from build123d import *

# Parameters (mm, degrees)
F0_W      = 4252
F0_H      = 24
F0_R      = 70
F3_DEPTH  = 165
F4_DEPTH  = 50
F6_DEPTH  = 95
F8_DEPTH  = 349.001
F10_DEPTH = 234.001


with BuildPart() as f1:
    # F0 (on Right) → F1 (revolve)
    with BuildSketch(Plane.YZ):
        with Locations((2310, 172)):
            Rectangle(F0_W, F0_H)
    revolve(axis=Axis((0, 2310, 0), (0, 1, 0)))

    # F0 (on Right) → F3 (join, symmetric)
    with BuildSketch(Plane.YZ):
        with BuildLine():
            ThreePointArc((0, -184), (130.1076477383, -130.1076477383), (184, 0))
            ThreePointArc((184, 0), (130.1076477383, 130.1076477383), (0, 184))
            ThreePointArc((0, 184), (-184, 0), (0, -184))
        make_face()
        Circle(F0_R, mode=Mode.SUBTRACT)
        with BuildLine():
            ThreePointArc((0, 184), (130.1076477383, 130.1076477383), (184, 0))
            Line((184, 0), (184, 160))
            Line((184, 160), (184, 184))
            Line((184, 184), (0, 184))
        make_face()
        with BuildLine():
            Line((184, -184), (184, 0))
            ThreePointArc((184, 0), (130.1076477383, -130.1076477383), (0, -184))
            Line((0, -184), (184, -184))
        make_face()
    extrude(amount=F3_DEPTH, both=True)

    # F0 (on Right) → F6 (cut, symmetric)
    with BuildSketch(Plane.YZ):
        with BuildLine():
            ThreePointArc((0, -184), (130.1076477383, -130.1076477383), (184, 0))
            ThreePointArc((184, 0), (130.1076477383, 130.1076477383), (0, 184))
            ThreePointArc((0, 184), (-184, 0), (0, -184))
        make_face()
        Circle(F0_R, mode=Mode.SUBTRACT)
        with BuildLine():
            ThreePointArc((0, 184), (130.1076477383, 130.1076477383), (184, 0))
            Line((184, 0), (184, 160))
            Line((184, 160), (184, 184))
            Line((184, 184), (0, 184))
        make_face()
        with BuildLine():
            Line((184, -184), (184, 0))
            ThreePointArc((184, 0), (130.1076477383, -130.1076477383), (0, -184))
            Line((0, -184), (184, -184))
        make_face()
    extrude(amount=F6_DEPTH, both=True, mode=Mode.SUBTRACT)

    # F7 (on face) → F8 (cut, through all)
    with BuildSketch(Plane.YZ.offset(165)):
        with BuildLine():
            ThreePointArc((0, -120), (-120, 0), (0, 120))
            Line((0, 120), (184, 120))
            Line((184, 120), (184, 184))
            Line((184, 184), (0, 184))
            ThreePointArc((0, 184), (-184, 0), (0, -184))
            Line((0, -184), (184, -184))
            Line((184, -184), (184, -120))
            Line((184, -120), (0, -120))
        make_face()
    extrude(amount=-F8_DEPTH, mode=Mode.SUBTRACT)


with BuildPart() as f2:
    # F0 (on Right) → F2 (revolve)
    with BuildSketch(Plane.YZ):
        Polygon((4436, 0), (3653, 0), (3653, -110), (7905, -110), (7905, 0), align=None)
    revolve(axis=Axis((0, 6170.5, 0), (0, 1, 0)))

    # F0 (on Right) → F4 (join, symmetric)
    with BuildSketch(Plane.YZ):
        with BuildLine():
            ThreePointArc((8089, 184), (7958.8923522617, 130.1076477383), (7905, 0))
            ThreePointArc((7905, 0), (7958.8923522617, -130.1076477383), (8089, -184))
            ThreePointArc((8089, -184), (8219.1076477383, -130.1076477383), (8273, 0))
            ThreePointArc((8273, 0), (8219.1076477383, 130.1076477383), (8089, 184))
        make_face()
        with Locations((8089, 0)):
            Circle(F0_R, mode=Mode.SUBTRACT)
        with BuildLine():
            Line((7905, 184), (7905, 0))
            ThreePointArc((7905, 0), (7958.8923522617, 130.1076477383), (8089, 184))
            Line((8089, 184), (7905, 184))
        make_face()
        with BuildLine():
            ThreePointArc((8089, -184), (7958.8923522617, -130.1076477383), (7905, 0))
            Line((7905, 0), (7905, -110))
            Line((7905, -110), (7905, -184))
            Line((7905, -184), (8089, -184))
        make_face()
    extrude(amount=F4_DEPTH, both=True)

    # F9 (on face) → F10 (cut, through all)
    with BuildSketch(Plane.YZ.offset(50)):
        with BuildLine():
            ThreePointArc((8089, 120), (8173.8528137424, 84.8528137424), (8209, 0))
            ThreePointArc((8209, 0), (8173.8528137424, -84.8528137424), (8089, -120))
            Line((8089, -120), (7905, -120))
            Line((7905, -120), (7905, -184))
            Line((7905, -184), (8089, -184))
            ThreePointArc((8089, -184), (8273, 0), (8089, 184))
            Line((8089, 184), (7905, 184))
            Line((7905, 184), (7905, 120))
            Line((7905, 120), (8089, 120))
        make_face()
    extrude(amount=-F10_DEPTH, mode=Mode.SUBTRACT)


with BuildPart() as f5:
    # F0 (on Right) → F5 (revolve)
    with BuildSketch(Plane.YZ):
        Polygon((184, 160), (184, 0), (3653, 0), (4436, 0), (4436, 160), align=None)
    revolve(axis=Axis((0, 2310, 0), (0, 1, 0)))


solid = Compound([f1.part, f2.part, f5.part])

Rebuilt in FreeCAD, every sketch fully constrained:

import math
import FreeCAD as App
import Part
import Sketcher
from FreeCAD import Vector


def add_polygon(sketch, points):
    """Adds a closed chain of lines whose ends are joined by coincident constraints."""
    first, n = sketch.GeometryCount, len(points)
    for a, b in zip(points, points[1:] + points[:1]):
        sketch.addGeometry(Part.LineSegment(App.Vector(*a, 0), App.Vector(*b, 0)), False)
    for i in range(n):
        sketch.addConstraint(Sketcher.Constraint("Coincident", first + i, 2, first + (i + 1) % n, 1))

doc = App.newDocument("Part")
body = doc.addObject("PartDesign::Body", "Body")

# Sketch on YZ plane
sketch1 = body.newObject("Sketcher::SketchObject", "Sketch")
sketch1.AttachmentSupport = (doc.getObject("YZ_Plane"), [""])
sketch1.MapMode = "FlatFace"
add_polygon(sketch1, [(184, 184), (184, 160), (4436, 160), (4436, 184)])  # lines 0-3
sketch1.addConstraint([
    Sketcher.Constraint("Vertical", 0),
    Sketcher.Constraint("Horizontal", 1),
    Sketcher.Constraint("Vertical", 2),
    Sketcher.Constraint("Horizontal", 3),
    Sketcher.Constraint("DistanceX", 1, 1, 1, 2, 4252.0),
    Sketcher.Constraint("DistanceY", 0, 2, 0, 1, 24.0),
    Sketcher.Constraint("DistanceX", -1, 1, 0, 2, 184.0),
    Sketcher.Constraint("DistanceY", -1, 1, 0, 2, 160.0),
])
revolution = body.newObject("PartDesign::Revolution", "Revolution")
revolution.Profile = sketch1
revolution.ReferenceAxis = (sketch1, ["H_Axis"])
revolution.Angle = 360

# Sketch on YZ plane
sketch2 = body.newObject("Sketcher::SketchObject", "Sketch001")
sketch2.AttachmentSupport = (doc.getObject("YZ_Plane"), [""])
sketch2.MapMode = "FlatFace"
sketch2.addGeometry([
    Part.ArcOfCircle(Part.Circle(Vector(0, 0, 0), Vector(0, 0, 1), 184), math.radians(90), math.radians(270)),  # 0
    Part.LineSegment(Vector(0, -184, 0), Vector(184, -184, 0)),  # 1
    Part.LineSegment(Vector(184, -184, 0), Vector(184, 184, 0)),  # 2
    Part.LineSegment(Vector(184, 184, 0), Vector(0, 184, 0)),  # 3
    Part.Circle(Vector(0, 0, 0), Vector(0, 0, 1), 70),  # 4
], False)
sketch2.addConstraint([
    Sketcher.Constraint("Tangent", 0, 2, 1, 1),
    Sketcher.Constraint("Coincident", 1, 2, 2, 1),
    Sketcher.Constraint("Coincident", 2, 2, 3, 1),
    Sketcher.Constraint("Tangent", 3, 2, 0, 1),
    Sketcher.Constraint("Horizontal", 1),
    Sketcher.Constraint("Vertical", 2),
    Sketcher.Constraint("Horizontal", 3),
    Sketcher.Constraint("Coincident", 0, 3, -1, 1),
    Sketcher.Constraint("Coincident", 4, 3, -1, 1),
    Sketcher.Constraint("Diameter", 4, 140.0),
    Sketcher.Constraint("Radius", 0, 184.0),
    Sketcher.Constraint("DistanceX", 1, 1, 1, 2, 184.0),
])
pad1 = body.newObject("PartDesign::Pad", "Pad")
pad1.Profile = sketch2
pad1.Length = 330
pad1.Midplane = True

# Sketch on YZ plane
sketch3 = body.newObject("Sketcher::SketchObject", "Sketch002")
sketch3.AttachmentSupport = (doc.getObject("YZ_Plane"), [""])
sketch3.MapMode = "FlatFace"
sketch3.addGeometry([
    Part.ArcOfCircle(Part.Circle(Vector(0, 0, 0), Vector(0, 0, 1), 184), math.radians(90), math.radians(270)),  # 0
    Part.LineSegment(Vector(0, -184, 0), Vector(184, -184, 0)),  # 1
    Part.LineSegment(Vector(184, -184, 0), Vector(184, 184, 0)),  # 2
    Part.LineSegment(Vector(184, 184, 0), Vector(0, 184, 0)),  # 3
    Part.Circle(Vector(0, 0, 0), Vector(0, 0, 1), 70),  # 4
], False)
sketch3.addConstraint([
    Sketcher.Constraint("Tangent", 0, 2, 1, 1),
    Sketcher.Constraint("Coincident", 1, 2, 2, 1),
    Sketcher.Constraint("Coincident", 2, 2, 3, 1),
    Sketcher.Constraint("Tangent", 3, 2, 0, 1),
    Sketcher.Constraint("Horizontal", 1),
    Sketcher.Constraint("Vertical", 2),
    Sketcher.Constraint("Horizontal", 3),
    Sketcher.Constraint("Coincident", 0, 3, -1, 1),
    Sketcher.Constraint("Coincident", 4, 3, -1, 1),
    Sketcher.Constraint("Diameter", 4, 140.0),
    Sketcher.Constraint("Radius", 0, 184.0),
    Sketcher.Constraint("DistanceX", 1, 1, 1, 2, 184.0),
])
pocket1 = body.newObject("PartDesign::Pocket", "Pocket")
pocket1.Profile = sketch3
pocket1.Length = 190
pocket1.Midplane = True

# Sketch on YZ plane
sketch4 = body.newObject("Sketcher::SketchObject", "Sketch003")
sketch4.AttachmentSupport = (doc.getObject("YZ_Plane"), [""])
sketch4.MapMode = "FlatFace"
sketch4.AttachmentOffset = App.Placement(Vector(0, 0, 165), App.Rotation())
sketch4.addGeometry([
    Part.ArcOfCircle(Part.Circle(Vector(0, 0, 0), Vector(0, 0, 1), 120), math.radians(90), math.radians(270)),  # 0
    Part.LineSegment(Vector(0, 120, 0), Vector(184, 120, 0)),  # 1
    Part.LineSegment(Vector(184, 120, 0), Vector(184, 184, 0)),  # 2
    Part.LineSegment(Vector(184, 184, 0), Vector(0, 184, 0)),  # 3
    Part.ArcOfCircle(Part.Circle(Vector(0, 0, 0), Vector(0, 0, 1), 184), math.radians(90), math.radians(270)),  # 4
    Part.LineSegment(Vector(0, -184, 0), Vector(184, -184, 0)),  # 5
    Part.LineSegment(Vector(184, -184, 0), Vector(184, -120, 0)),  # 6
    Part.LineSegment(Vector(184, -120, 0), Vector(0, -120, 0)),  # 7
], False)
sketch4.addConstraint([
    Sketcher.Constraint("Tangent", 0, 1, 1, 1),
    Sketcher.Constraint("Coincident", 1, 2, 2, 1),
    Sketcher.Constraint("Coincident", 2, 2, 3, 1),
    Sketcher.Constraint("Tangent", 3, 2, 4, 1),
    Sketcher.Constraint("Tangent", 4, 2, 5, 1),
    Sketcher.Constraint("Coincident", 5, 2, 6, 1),
    Sketcher.Constraint("Coincident", 6, 2, 7, 1),
    Sketcher.Constraint("Tangent", 7, 2, 0, 2),
    Sketcher.Constraint("Horizontal", 1),
    Sketcher.Constraint("Vertical", 2),
    Sketcher.Constraint("Horizontal", 3),
    Sketcher.Constraint("Horizontal", 5),
    Sketcher.Constraint("Vertical", 6),
    Sketcher.Constraint("Horizontal", 7),
    Sketcher.Constraint("Coincident", 0, 3, -1, 1),
    Sketcher.Constraint("Coincident", 4, 3, -1, 1),
    Sketcher.Constraint("Vertical", 2, 2, 5, 2),
    Sketcher.Constraint("Radius", 0, 120.0),
    Sketcher.Constraint("Radius", 4, 184.0),
    Sketcher.Constraint("DistanceX", 1, 1, 1, 2, 184.0),
])
pocket2 = body.newObject("PartDesign::Pocket", "Pocket001")
pocket2.Profile = sketch4
pocket2.Type = "ThroughAll"
body2 = doc.addObject("PartDesign::Body", "Body001")

# Sketch on YZ plane
sketch5 = body2.newObject("Sketcher::SketchObject", "Sketch004")
sketch5.AttachmentSupport = (doc.getObject("YZ_Plane001"), [""])
sketch5.MapMode = "FlatFace"
add_polygon(sketch5, [(3653, 0), (3653, -110), (7905, -110), (7905, 0)])  # lines 0-3
sketch5.addConstraint([
    Sketcher.Constraint("Vertical", 0),
    Sketcher.Constraint("Horizontal", 1),
    Sketcher.Constraint("Vertical", 2),
    Sketcher.Constraint("Horizontal", 3),
    Sketcher.Constraint("PointOnObject", 2, 2, -1),
    Sketcher.Constraint("DistanceX", 1, 1, 1, 2, 4252.0),
    Sketcher.Constraint("DistanceY", 0, 2, 0, 1, 110.0),
    Sketcher.Constraint("DistanceX", -1, 1, 0, 2, 3653.0),
])
revolution2 = body2.newObject("PartDesign::Revolution", "Revolution001")
revolution2.Profile = sketch5
revolution2.ReferenceAxis = (sketch5, ["H_Axis"])
revolution2.Angle = 360

# Sketch on YZ plane
sketch6 = body2.newObject("Sketcher::SketchObject", "Sketch005")
sketch6.AttachmentSupport = (doc.getObject("YZ_Plane001"), [""])
sketch6.MapMode = "FlatFace"
sketch6.addGeometry([
    Part.LineSegment(Vector(8089, 184, 0), Vector(7905, 184, 0)),  # 0
    Part.LineSegment(Vector(7905, 184, 0), Vector(7905, -184, 0)),  # 1
    Part.LineSegment(Vector(7905, -184, 0), Vector(8089, -184, 0)),  # 2
    Part.ArcOfCircle(Part.Circle(Vector(8089, 0, 0), Vector(0, 0, 1), 184), math.radians(-90), math.radians(90)),  # 3
    Part.Circle(Vector(8089, 0, 0), Vector(0, 0, 1), 70),  # 4
], False)
sketch6.addConstraint([
    Sketcher.Constraint("Coincident", 0, 2, 1, 1),
    Sketcher.Constraint("Coincident", 1, 2, 2, 1),
    Sketcher.Constraint("Tangent", 2, 2, 3, 1),
    Sketcher.Constraint("Tangent", 3, 2, 0, 1),
    Sketcher.Constraint("Horizontal", 0),
    Sketcher.Constraint("Vertical", 1),
    Sketcher.Constraint("Horizontal", 2),
    Sketcher.Constraint("Coincident", 4, 3, 3, 3),
    Sketcher.Constraint("PointOnObject", 3, 3, -1),
    Sketcher.Constraint("Diameter", 4, 140.0),
    Sketcher.Constraint("Radius", 3, 184.0),
    Sketcher.Constraint("DistanceX", 0, 2, 0, 1, 184.0),
    Sketcher.Constraint("DistanceX", -1, 1, 3, 3, 8089.0),
])
pad2 = body2.newObject("PartDesign::Pad", "Pad001")
pad2.Profile = sketch6
pad2.Length = 100
pad2.Midplane = True

# Sketch on YZ plane
sketch7 = body2.newObject("Sketcher::SketchObject", "Sketch006")
sketch7.AttachmentSupport = (doc.getObject("YZ_Plane001"), [""])
sketch7.MapMode = "FlatFace"
sketch7.AttachmentOffset = App.Placement(Vector(0, 0, 50), App.Rotation())
sketch7.addGeometry([
    Part.ArcOfCircle(Part.Circle(Vector(8089, 0, 0), Vector(0, 0, 1), 120), math.radians(-90), math.radians(90)),  # 0
    Part.LineSegment(Vector(8089, -120, 0), Vector(7905, -120, 0)),  # 1
    Part.LineSegment(Vector(7905, -120, 0), Vector(7905, -184, 0)),  # 2
    Part.LineSegment(Vector(7905, -184, 0), Vector(8089, -184, 0)),  # 3
    Part.ArcOfCircle(Part.Circle(Vector(8089, 0, 0), Vector(0, 0, 1), 184), math.radians(-90), math.radians(90)),  # 4
    Part.LineSegment(Vector(8089, 184, 0), Vector(7905, 184, 0)),  # 5
    Part.LineSegment(Vector(7905, 184, 0), Vector(7905, 120, 0)),  # 6
    Part.LineSegment(Vector(7905, 120, 0), Vector(8089, 120, 0)),  # 7
], False)
sketch7.addConstraint([
    Sketcher.Constraint("Tangent", 0, 1, 1, 1),
    Sketcher.Constraint("Coincident", 1, 2, 2, 1),
    Sketcher.Constraint("Coincident", 2, 2, 3, 1),
    Sketcher.Constraint("Tangent", 3, 2, 4, 1),
    Sketcher.Constraint("Tangent", 4, 2, 5, 1),
    Sketcher.Constraint("Coincident", 5, 2, 6, 1),
    Sketcher.Constraint("Coincident", 6, 2, 7, 1),
    Sketcher.Constraint("Tangent", 7, 2, 0, 2),
    Sketcher.Constraint("Horizontal", 1),
    Sketcher.Constraint("Vertical", 2),
    Sketcher.Constraint("Horizontal", 3),
    Sketcher.Constraint("Horizontal", 5),
    Sketcher.Constraint("Vertical", 6),
    Sketcher.Constraint("Horizontal", 7),
    Sketcher.Constraint("Coincident", 4, 3, 0, 3),
    Sketcher.Constraint("Symmetric", 2, 2, 5, 2, -1),
    Sketcher.Constraint("Radius", 0, 120.0),
    Sketcher.Constraint("Radius", 4, 184.0),
    Sketcher.Constraint("DistanceX", 1, 2, 1, 1, 184.0),
    Sketcher.Constraint("DistanceX", -1, 1, 0, 3, 8089.0),
])
pocket3 = body2.newObject("PartDesign::Pocket", "Pocket002")
pocket3.Profile = sketch7
pocket3.Type = "ThroughAll"
body3 = doc.addObject("PartDesign::Body", "Body002")

# Sketch on YZ plane
sketch8 = body3.newObject("Sketcher::SketchObject", "Sketch007")
sketch8.AttachmentSupport = (doc.getObject("YZ_Plane002"), [""])
sketch8.MapMode = "FlatFace"
add_polygon(sketch8, [(184, 160), (184, 0), (4436, 0), (4436, 160)])  # lines 0-3
sketch8.addConstraint([
    Sketcher.Constraint("Vertical", 0),
    Sketcher.Constraint("Horizontal", 1),
    Sketcher.Constraint("Vertical", 2),
    Sketcher.Constraint("Horizontal", 3),
    Sketcher.Constraint("PointOnObject", 0, 2, -1),
    Sketcher.Constraint("DistanceX", 1, 1, 1, 2, 4252.0),
    Sketcher.Constraint("DistanceY", 0, 2, 0, 1, 160.0),
    Sketcher.Constraint("DistanceX", -1, 1, 0, 2, 184.0),
])
revolution3 = body3.newObject("PartDesign::Revolution", "Revolution002")
revolution3.Profile = sketch8
revolution3.ReferenceAxis = (sketch8, ["H_Axis"])
revolution3.Angle = 360

doc.recompute()
